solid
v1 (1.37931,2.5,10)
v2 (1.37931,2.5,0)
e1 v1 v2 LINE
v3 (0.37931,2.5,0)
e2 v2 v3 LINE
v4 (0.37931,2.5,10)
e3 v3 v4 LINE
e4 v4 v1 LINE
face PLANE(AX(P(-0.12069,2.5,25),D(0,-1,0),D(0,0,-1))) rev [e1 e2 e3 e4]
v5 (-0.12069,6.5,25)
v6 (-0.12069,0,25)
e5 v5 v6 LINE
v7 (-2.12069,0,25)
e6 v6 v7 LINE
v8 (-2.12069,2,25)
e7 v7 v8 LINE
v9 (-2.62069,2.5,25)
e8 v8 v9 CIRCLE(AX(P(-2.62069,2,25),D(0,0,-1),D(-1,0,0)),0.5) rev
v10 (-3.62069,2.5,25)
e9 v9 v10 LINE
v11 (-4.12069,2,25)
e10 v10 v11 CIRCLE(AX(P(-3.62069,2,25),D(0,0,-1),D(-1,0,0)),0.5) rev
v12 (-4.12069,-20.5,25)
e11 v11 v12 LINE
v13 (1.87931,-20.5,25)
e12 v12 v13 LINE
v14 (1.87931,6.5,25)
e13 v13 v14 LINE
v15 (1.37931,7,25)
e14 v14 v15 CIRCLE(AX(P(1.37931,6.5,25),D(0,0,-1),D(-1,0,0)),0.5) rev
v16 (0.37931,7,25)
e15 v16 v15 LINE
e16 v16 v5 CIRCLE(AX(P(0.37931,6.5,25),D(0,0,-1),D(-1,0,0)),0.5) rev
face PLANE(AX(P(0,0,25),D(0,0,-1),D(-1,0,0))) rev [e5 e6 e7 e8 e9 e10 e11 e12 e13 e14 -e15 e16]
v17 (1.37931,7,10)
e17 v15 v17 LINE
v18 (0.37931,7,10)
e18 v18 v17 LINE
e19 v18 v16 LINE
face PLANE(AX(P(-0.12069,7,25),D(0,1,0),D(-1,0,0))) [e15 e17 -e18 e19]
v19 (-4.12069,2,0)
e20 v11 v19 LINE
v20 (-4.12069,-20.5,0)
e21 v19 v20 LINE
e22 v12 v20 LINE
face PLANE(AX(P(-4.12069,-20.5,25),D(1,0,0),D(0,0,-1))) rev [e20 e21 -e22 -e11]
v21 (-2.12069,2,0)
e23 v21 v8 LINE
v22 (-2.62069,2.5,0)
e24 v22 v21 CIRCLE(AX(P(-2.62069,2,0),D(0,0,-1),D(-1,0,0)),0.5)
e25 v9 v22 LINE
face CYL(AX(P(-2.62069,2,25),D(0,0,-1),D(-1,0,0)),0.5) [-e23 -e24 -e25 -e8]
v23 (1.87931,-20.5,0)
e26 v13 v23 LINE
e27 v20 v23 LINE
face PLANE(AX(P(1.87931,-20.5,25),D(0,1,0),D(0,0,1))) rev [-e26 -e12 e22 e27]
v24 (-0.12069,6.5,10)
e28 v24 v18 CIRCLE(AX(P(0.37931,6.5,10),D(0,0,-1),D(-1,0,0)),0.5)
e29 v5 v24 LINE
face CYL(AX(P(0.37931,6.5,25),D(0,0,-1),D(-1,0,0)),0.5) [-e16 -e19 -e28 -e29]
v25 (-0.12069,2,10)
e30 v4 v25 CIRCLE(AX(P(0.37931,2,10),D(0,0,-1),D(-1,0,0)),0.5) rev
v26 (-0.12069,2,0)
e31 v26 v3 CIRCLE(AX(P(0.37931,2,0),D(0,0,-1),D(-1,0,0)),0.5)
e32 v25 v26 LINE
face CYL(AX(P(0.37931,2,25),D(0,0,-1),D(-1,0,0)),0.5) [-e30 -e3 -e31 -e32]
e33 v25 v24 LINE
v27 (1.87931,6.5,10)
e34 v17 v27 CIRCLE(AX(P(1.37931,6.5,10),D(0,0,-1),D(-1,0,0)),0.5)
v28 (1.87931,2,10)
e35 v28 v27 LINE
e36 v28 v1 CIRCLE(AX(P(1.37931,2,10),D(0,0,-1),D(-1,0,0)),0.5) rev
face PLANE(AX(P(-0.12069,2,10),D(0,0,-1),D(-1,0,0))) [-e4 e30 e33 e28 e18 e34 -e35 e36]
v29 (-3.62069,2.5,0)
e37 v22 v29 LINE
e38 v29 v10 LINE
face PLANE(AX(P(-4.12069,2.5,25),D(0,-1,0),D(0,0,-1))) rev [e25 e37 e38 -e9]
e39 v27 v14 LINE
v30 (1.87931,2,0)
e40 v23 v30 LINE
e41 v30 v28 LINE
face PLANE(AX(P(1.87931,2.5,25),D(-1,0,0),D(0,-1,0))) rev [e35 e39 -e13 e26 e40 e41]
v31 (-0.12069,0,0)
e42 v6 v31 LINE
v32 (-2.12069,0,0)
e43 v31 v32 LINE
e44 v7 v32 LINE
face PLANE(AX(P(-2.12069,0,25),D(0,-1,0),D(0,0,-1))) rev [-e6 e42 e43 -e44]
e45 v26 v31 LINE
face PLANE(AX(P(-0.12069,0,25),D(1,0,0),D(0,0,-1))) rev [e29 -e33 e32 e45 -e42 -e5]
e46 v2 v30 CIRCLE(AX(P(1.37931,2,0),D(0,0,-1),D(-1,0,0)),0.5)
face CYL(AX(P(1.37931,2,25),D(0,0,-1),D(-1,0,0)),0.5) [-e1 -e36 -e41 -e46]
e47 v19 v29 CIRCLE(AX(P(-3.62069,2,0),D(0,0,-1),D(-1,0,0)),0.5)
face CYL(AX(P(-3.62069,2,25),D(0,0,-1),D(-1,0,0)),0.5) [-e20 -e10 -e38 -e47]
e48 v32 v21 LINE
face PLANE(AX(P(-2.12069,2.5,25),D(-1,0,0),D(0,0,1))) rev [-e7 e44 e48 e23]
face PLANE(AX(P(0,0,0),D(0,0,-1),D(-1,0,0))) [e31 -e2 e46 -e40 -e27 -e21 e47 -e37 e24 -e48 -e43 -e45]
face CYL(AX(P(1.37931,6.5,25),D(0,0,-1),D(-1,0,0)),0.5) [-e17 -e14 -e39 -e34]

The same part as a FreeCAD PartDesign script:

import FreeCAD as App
import Part
import Sketcher

V = App.Vector
Q = App.Units.Quantity


def edges_at(feature, points):
    """Names of the edges that pass closest to the given points."""
    edges = feature.Shape.Edges
    near = lambda p: min(range(len(edges)), key=lambda i: edges[i].distToShape(Part.Vertex(*p))[0])
    return sorted({f"Edge{near(p) + 1}" for p in points})


def add_polygon(sketch, points):
    """Adds a closed chain of lines whose ends are joined by coincident constraints."""
    first, n = sketch.GeometryCount, len(points)
    for a, b in zip(points, points[1:] + points[:1]):
        sketch.addGeometry(Part.LineSegment(App.Vector(*a, 0), App.Vector(*b, 0)), False)
    for i in range(n):
        sketch.addConstraint(Sketcher.Constraint("Coincident", first + i, 2, first + (i + 1) % n, 1))

doc = App.newDocument("Part")
body = doc.addObject("PartDesign::Body", "Body")

sketch1 = doc.addObject("Sketcher::SketchObject", "Sketch")
body.addObject(sketch1)
sketch1.AttachmentSupport = (doc.XY_Plane, [""])
sketch1.MapMode = "FlatFace"
add_polygon(sketch1, [(-2.1, 2.5), (-4.1, 2.5), (-4.1, -20.5), (1.9, -20.5), (1.9, 2.5), (-0.1, 2.5), (-0.1, 0), (-2.1, 0)])
sketch1.addConstraint([
    Sketcher.Constraint("Horizontal", 0),
    Sketcher.Constraint("Vertical", 1),
    Sketcher.Constraint("Horizontal", 2),
    Sketcher.Constraint("Vertical", 3),
    Sketcher.Constraint("Horizontal", 4),
    Sketcher.Constraint("Vertical", 5),
    Sketcher.Constraint("Horizontal", 6),
    Sketcher.Constraint("Vertical", 7),
    Sketcher.Constraint("PointOnObject", 5, 2, -1),
    Sketcher.Constraint("Horizontal", 0, 2, 3, 2),
    Sketcher.Constraint("Equal", 0, 4),
    Sketcher.Constraint("Equal", 4, 6),
    Sketcher.Constraint("DistanceX", 0, 2, 0, 1, Q("2 mm")),
    Sketcher.Constraint("DistanceY", 1, 2, 1, 1, Q("23 mm")),
    Sketcher.Constraint("DistanceY", 5, 2, 5, 1, Q("2.5 mm")),
    Sketcher.Constraint("DistanceX", 0, 2, -1, 1, Q("4.12069 mm")),
])
pad1 = doc.addObject("PartDesign::Pad", "Pad")
body.addObject(pad1)
pad1.Profile = sketch1
pad1.Length = 25
doc.recompute()

fillet = doc.addObject("PartDesign::Fillet", "Fillet")
body.addObject(fillet)
fillet.Base = (pad1, edges_at(pad1, [
    (-4.121, 2.5, 12.5),
    (-2.121, 2.5, 12.5),
    (-0.121, 2.5, 12.5),
    (1.879, 2.5, 12.5),
]))
fillet.Radius = 0.5

sketch2 = doc.addObject("Sketcher::SketchObject", "Sketch001")
body.addObject(sketch2)
sketch2.AttachmentSupport = (doc.YZ_Plane, [""])
sketch2.MapMode = "FlatFace"
sketch2.AttachmentOffset = App.Placement(V(0, 0, 1.87931), App.Rotation())
add_polygon(sketch2, [(7, 25), (2, 25), (2, 10), (7, 10)])
sketch2.addConstraint([
    Sketcher.Constraint("Horizontal", 0),
    Sketcher.Constraint("Vertical", 1),
    Sketcher.Constraint("Horizontal", 2),
    Sketcher.Constraint("Vertical", 3),
    Sketcher.Constraint("DistanceX", 0, 2, 0, 1, Q("5 mm")),
    Sketcher.Constraint("DistanceY", 1, 2, 1, 1, Q("15 mm")),
    Sketcher.Constraint("DistanceX", -1, 1, 0, 2, Q("2 mm")),
    Sketcher.Constraint("DistanceY", -1, 1, 0, 2, Q("25 mm")),
])
pad2 = doc.addObject("PartDesign::Pad", "Pad001")
body.addObject(pad2)
pad2.Profile = sketch2
pad2.Length = 2
pad2.Reversed = True
doc.recompute()

fillet2 = doc.addObject("PartDesign::Fillet", "Fillet001")
body.addObject(fillet2)
fillet2.Base = (pad2, edges_at(pad2, [(-0.121, 7, 17.5), (1.879, 7, 17.5)]))
fillet2.Radius = 0.5

doc.recompute()
